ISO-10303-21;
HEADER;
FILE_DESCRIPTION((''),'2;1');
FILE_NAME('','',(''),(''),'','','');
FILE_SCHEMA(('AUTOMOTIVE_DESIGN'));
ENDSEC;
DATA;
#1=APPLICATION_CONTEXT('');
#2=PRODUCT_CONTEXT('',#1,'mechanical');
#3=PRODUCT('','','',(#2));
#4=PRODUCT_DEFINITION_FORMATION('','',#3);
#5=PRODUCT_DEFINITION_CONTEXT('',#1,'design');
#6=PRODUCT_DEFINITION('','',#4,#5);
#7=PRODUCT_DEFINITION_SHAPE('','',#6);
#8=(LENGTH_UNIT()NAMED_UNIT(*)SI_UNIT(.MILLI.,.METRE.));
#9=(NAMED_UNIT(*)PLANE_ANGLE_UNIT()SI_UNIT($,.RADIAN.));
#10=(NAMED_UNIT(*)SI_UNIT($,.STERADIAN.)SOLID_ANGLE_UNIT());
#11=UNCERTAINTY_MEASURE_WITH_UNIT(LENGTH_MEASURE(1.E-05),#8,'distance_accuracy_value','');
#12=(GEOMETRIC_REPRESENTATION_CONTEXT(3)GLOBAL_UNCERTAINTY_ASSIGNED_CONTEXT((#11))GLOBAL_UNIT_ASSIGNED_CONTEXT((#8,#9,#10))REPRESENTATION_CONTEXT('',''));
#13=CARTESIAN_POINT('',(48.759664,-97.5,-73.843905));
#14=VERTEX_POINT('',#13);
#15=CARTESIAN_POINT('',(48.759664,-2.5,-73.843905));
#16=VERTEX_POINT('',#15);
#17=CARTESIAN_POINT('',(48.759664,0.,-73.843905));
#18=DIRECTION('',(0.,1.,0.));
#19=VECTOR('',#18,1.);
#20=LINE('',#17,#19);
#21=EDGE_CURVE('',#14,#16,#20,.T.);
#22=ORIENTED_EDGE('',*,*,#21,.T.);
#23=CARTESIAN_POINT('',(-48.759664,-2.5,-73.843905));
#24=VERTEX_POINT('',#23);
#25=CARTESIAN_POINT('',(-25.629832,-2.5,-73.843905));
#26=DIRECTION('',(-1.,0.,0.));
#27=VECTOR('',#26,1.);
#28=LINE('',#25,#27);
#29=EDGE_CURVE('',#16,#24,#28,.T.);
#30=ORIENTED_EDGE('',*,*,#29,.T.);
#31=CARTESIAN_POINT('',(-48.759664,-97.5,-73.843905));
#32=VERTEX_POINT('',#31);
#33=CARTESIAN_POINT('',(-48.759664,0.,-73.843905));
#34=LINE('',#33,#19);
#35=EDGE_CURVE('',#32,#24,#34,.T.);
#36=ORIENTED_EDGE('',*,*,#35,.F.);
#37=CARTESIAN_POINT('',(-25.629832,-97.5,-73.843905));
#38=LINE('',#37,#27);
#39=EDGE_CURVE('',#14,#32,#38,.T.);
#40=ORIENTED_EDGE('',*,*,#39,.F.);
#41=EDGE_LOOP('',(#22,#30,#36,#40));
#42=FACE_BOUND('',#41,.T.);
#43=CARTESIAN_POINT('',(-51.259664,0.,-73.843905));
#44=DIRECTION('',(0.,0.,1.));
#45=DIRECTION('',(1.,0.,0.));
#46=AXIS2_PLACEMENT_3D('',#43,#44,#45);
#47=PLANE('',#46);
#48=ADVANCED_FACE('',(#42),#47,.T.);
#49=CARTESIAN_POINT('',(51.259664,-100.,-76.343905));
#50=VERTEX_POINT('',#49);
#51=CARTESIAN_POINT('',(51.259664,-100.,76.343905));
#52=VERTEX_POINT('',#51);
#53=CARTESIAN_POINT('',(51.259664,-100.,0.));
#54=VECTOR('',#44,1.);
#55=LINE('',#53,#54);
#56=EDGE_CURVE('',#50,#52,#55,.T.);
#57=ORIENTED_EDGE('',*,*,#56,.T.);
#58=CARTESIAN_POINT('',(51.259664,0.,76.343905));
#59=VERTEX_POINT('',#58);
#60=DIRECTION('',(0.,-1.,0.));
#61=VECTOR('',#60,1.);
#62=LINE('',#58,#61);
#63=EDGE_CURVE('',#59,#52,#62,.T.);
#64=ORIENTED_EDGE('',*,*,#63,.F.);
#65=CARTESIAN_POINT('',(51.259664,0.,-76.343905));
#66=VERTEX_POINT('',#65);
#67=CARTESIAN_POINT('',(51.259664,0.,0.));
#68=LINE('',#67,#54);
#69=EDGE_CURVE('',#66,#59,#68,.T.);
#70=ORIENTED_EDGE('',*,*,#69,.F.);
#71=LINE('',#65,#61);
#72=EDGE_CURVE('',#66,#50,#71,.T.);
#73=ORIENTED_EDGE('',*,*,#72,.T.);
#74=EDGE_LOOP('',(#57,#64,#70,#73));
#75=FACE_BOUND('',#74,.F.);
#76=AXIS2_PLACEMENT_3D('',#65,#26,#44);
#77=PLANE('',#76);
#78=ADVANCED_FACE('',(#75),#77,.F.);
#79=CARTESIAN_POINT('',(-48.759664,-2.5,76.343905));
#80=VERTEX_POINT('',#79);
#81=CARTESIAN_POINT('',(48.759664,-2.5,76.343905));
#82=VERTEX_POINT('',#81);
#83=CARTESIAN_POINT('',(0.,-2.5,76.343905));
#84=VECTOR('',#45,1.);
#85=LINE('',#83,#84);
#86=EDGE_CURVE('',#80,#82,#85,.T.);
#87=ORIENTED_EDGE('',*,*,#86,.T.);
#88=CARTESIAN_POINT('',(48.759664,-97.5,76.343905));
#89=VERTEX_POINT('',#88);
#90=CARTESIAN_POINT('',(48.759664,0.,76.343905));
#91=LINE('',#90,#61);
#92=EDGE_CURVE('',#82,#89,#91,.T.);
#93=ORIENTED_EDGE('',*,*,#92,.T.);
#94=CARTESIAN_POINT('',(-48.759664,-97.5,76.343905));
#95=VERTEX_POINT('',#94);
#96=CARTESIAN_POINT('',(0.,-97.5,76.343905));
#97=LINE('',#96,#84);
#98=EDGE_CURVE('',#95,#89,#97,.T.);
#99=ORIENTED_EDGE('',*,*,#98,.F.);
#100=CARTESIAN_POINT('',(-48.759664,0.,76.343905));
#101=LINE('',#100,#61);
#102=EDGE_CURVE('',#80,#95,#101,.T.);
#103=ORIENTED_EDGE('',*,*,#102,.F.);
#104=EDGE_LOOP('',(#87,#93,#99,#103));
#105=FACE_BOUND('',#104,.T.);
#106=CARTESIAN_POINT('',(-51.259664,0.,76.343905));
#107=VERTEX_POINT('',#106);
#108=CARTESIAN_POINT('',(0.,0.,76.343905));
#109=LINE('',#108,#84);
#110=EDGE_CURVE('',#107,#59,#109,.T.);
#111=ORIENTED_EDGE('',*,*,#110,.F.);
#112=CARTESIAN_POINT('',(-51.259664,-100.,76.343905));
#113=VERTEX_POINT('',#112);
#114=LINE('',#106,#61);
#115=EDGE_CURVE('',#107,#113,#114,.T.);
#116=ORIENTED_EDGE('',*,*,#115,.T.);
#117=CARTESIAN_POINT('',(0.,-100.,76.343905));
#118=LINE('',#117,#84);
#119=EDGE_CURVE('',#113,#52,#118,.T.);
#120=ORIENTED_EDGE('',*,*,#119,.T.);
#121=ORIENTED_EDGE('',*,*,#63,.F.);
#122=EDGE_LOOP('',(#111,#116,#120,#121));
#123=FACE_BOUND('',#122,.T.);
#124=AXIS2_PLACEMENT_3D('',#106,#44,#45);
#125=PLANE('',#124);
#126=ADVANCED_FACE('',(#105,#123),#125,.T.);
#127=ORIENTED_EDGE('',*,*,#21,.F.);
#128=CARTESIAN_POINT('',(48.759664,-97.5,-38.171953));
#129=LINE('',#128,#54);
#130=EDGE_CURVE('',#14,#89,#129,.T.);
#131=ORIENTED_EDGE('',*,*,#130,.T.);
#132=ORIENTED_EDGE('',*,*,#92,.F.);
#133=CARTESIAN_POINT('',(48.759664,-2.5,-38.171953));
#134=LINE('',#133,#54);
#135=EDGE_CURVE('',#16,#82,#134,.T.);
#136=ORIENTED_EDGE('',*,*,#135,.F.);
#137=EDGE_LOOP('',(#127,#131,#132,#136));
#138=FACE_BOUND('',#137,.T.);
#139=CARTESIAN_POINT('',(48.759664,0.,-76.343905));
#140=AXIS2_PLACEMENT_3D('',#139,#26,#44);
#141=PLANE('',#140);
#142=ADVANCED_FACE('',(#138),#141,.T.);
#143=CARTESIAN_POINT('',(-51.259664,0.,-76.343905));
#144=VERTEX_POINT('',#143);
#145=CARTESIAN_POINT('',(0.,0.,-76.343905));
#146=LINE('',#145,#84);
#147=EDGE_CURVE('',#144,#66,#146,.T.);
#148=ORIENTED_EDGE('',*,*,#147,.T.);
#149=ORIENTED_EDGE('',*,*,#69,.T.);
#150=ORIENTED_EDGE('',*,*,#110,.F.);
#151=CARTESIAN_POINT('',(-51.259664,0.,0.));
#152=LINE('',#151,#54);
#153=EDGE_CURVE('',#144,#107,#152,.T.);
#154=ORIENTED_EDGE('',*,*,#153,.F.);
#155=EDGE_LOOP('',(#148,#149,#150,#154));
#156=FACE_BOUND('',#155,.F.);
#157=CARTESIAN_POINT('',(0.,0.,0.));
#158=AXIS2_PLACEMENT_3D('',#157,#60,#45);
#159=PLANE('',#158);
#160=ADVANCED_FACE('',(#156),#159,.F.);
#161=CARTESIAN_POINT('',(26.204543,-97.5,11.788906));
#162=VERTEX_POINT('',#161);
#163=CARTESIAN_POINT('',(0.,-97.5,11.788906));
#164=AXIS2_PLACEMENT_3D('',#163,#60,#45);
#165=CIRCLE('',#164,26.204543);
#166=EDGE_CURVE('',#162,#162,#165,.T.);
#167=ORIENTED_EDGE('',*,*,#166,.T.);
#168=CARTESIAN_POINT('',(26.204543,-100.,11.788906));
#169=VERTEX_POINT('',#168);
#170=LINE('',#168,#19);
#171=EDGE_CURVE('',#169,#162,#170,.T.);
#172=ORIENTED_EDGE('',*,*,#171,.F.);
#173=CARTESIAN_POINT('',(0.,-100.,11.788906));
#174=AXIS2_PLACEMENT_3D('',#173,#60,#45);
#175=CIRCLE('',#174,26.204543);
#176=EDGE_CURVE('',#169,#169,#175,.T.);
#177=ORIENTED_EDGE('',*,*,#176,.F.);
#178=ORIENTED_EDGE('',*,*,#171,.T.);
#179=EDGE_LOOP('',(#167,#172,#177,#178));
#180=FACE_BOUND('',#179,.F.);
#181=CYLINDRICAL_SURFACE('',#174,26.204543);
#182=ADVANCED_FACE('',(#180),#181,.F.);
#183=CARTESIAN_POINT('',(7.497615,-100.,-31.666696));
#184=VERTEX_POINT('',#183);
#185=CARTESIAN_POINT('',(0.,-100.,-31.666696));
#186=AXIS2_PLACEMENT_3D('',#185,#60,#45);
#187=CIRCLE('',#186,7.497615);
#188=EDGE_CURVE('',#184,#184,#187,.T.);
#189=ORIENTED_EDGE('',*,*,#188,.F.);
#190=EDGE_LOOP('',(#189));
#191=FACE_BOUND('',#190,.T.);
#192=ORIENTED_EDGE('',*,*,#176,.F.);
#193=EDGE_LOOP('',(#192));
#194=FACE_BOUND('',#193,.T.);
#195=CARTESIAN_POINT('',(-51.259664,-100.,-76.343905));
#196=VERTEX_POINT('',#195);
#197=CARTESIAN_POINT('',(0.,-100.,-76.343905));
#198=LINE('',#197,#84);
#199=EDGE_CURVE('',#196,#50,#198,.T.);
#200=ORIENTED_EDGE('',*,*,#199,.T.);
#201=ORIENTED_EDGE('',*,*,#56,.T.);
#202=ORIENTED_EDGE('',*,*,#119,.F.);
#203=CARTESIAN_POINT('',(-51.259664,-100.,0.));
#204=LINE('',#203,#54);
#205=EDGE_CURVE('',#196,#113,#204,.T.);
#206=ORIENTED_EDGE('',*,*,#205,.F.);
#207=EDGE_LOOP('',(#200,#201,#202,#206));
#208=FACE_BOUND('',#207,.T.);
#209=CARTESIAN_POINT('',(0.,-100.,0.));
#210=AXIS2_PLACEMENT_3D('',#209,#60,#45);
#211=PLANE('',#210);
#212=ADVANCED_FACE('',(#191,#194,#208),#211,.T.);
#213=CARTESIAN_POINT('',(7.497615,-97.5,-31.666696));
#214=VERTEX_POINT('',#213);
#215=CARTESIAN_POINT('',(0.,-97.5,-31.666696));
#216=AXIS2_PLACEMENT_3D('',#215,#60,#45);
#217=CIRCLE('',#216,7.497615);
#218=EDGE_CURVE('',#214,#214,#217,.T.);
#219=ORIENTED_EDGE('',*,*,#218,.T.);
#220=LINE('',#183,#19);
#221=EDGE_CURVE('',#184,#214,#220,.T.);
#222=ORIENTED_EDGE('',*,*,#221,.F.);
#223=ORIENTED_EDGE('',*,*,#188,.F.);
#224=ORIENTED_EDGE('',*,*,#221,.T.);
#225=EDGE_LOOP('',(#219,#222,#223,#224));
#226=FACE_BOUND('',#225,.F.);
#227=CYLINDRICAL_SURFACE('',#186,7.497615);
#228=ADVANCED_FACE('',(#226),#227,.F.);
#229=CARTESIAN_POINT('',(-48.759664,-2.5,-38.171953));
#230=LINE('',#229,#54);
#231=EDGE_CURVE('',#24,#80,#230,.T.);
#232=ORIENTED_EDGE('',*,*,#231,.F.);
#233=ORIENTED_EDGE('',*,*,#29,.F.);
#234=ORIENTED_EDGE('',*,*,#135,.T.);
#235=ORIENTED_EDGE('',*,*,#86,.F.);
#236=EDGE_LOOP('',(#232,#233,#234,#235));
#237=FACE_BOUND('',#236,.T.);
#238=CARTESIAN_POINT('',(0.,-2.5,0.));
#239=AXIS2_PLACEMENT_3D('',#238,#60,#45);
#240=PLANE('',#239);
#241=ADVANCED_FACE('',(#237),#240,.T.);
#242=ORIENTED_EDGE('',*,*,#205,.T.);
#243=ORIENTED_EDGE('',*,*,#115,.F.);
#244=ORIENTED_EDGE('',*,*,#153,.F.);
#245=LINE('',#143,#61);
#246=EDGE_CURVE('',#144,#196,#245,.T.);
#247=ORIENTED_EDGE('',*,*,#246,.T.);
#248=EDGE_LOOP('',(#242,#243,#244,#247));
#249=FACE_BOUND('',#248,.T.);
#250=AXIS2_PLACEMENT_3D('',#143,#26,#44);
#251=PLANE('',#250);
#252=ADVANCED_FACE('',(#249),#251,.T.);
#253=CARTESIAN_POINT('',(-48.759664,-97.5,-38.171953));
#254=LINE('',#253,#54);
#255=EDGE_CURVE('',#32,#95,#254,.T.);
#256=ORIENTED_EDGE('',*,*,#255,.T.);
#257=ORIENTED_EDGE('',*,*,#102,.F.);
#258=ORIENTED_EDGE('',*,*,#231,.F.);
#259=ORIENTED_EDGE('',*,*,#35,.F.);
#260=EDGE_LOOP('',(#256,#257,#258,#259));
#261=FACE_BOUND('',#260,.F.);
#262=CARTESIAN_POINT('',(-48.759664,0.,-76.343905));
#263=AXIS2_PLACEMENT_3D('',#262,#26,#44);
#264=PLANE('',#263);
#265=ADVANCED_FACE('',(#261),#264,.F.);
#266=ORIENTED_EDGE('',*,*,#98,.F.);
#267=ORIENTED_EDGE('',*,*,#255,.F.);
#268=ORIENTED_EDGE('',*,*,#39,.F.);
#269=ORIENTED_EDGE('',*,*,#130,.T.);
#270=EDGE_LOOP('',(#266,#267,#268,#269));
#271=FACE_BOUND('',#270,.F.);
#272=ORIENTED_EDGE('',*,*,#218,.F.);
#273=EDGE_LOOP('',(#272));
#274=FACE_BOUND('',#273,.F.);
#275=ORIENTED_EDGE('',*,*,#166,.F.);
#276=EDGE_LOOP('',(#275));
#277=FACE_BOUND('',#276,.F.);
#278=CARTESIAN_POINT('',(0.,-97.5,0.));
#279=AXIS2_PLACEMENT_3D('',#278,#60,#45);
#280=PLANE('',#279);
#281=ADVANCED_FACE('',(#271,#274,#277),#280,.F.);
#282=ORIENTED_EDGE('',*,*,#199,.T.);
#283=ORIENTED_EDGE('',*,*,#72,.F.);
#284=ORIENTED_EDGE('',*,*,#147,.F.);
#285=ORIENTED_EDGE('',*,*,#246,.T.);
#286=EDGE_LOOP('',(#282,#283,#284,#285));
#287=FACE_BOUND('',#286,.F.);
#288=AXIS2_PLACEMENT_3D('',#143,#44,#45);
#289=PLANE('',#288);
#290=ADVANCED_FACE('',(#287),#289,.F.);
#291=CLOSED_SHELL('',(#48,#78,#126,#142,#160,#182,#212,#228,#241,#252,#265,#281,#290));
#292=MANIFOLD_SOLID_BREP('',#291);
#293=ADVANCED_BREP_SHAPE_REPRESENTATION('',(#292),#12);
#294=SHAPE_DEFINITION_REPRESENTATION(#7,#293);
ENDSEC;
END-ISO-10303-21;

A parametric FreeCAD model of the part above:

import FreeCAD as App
import Part
import Sketcher
Q = App.Units.Quantity


def faces_at(feature, points):
    """Names of the faces that lie closest to the given points."""
    faces = feature.Shape.Faces
    near = lambda p: min(range(len(faces)), key=lambda i: faces[i].distToShape(Part.Vertex(*p))[0])
    return sorted({f"Face{near(p) + 1}" for p in points})


def add_polygon(sketch, points):
    """Adds a closed chain of lines whose ends are joined by coincident constraints."""
    first, n = sketch.GeometryCount, len(points)
    for a, b in zip(points, points[1:] + points[:1]):
        sketch.addGeometry(Part.LineSegment(App.Vector(*a, 0), App.Vector(*b, 0)), False)
    for i in range(n):
        sketch.addConstraint(Sketcher.Constraint("Coincident", first + i, 2, first + (i + 1) % n, 1))

doc = App.newDocument("Part")
body = doc.addObject("PartDesign::Body", "Body")

# Sketch on XZ plane
sketch1 = body.newObject("Sketcher::SketchObject", "Sketch")
sketch1.AttachmentSupport = (doc.getObject("XZ_Plane"), [""])
sketch1.MapMode = "FlatFace"
add_polygon(sketch1, [(-51, 76), (-51, -76), (51, -76), (51, 76)])  # lines 0-3
sketch1.addConstraint([
    Sketcher.Constraint("Vertical", 0),
    Sketcher.Constraint("Horizontal", 1),
    Sketcher.Constraint("Vertical", 2),
    Sketcher.Constraint("Horizontal", 3),
    Sketcher.Constraint("Symmetric", 0, 2, 2, 2, -1, 1),
    Sketcher.Constraint("DistanceX", 1, 1, 1, 2, Q("102.519328 mm")),
    Sketcher.Constraint("DistanceY", 0, 2, 0, 1, Q("152.68781 mm")),
])
pad1 = body.newObject("PartDesign::Pad", "Pad")
pad1.Profile = sketch1
pad1.Length = 100
doc.recompute()

thickness = body.newObject("PartDesign::Thickness", "Thickness")
thickness.Base = (pad1, faces_at(pad1, [(0, -50, 76.344)]))
thickness.Value = 2.5
thickness.Reversed = True
thickness.Join = "Arc"

# Sketch on XZ plane
sketch2 = body.newObject("Sketcher::SketchObject", "Sketch001")
sketch2.AttachmentSupport = (doc.getObject("XZ_Plane"), [""])
sketch2.MapMode = "FlatFace"
sketch2.AttachmentOffset = App.Placement(App.Vector(0, 0, 100), App.Rotation())
sketch2.addGeometry(Part.Circle(App.Vector(0, 12, 0), App.Vector(0, 0, 1), 26), False)
sketch2.addConstraint([
    Sketcher.Constraint("PointOnObject", 0, 3, -2),
    Sketcher.Constraint("Diameter", 0, Q("52.409086 mm")),
    Sketcher.Constraint("DistanceY", -1, 1, 0, 3, Q("11.788906 mm")),
])
pocket1 = body.newObject("PartDesign::Pocket", "Pocket")
pocket1.Profile = sketch2
pocket1.Length = 25

# Sketch on XZ plane
sketch3 = body.newObject("Sketcher::SketchObject", "Sketch002")
sketch3.AttachmentSupport = (doc.getObject("XZ_Plane"), [""])
sketch3.MapMode = "FlatFace"
sketch3.AttachmentOffset = App.Placement(App.Vector(0, 0, 100), App.Rotation())
sketch3.addGeometry(Part.Circle(App.Vector(0, -32, 0), App.Vector(0, 0, 1), 7), False)
sketch3.addConstraint([
    Sketcher.Constraint("PointOnObject", 0, 3, -2),
    Sketcher.Constraint("Diameter", 0, Q("14.99523 mm")),
    Sketcher.Constraint("DistanceY", 0, 3, -1, 1, Q("31.666696 mm")),
])
pocket2 = body.newObject("PartDesign::Pocket", "Pocket001")
pocket2.Profile = sketch3
pocket2.Length = 25

doc.recompute()
